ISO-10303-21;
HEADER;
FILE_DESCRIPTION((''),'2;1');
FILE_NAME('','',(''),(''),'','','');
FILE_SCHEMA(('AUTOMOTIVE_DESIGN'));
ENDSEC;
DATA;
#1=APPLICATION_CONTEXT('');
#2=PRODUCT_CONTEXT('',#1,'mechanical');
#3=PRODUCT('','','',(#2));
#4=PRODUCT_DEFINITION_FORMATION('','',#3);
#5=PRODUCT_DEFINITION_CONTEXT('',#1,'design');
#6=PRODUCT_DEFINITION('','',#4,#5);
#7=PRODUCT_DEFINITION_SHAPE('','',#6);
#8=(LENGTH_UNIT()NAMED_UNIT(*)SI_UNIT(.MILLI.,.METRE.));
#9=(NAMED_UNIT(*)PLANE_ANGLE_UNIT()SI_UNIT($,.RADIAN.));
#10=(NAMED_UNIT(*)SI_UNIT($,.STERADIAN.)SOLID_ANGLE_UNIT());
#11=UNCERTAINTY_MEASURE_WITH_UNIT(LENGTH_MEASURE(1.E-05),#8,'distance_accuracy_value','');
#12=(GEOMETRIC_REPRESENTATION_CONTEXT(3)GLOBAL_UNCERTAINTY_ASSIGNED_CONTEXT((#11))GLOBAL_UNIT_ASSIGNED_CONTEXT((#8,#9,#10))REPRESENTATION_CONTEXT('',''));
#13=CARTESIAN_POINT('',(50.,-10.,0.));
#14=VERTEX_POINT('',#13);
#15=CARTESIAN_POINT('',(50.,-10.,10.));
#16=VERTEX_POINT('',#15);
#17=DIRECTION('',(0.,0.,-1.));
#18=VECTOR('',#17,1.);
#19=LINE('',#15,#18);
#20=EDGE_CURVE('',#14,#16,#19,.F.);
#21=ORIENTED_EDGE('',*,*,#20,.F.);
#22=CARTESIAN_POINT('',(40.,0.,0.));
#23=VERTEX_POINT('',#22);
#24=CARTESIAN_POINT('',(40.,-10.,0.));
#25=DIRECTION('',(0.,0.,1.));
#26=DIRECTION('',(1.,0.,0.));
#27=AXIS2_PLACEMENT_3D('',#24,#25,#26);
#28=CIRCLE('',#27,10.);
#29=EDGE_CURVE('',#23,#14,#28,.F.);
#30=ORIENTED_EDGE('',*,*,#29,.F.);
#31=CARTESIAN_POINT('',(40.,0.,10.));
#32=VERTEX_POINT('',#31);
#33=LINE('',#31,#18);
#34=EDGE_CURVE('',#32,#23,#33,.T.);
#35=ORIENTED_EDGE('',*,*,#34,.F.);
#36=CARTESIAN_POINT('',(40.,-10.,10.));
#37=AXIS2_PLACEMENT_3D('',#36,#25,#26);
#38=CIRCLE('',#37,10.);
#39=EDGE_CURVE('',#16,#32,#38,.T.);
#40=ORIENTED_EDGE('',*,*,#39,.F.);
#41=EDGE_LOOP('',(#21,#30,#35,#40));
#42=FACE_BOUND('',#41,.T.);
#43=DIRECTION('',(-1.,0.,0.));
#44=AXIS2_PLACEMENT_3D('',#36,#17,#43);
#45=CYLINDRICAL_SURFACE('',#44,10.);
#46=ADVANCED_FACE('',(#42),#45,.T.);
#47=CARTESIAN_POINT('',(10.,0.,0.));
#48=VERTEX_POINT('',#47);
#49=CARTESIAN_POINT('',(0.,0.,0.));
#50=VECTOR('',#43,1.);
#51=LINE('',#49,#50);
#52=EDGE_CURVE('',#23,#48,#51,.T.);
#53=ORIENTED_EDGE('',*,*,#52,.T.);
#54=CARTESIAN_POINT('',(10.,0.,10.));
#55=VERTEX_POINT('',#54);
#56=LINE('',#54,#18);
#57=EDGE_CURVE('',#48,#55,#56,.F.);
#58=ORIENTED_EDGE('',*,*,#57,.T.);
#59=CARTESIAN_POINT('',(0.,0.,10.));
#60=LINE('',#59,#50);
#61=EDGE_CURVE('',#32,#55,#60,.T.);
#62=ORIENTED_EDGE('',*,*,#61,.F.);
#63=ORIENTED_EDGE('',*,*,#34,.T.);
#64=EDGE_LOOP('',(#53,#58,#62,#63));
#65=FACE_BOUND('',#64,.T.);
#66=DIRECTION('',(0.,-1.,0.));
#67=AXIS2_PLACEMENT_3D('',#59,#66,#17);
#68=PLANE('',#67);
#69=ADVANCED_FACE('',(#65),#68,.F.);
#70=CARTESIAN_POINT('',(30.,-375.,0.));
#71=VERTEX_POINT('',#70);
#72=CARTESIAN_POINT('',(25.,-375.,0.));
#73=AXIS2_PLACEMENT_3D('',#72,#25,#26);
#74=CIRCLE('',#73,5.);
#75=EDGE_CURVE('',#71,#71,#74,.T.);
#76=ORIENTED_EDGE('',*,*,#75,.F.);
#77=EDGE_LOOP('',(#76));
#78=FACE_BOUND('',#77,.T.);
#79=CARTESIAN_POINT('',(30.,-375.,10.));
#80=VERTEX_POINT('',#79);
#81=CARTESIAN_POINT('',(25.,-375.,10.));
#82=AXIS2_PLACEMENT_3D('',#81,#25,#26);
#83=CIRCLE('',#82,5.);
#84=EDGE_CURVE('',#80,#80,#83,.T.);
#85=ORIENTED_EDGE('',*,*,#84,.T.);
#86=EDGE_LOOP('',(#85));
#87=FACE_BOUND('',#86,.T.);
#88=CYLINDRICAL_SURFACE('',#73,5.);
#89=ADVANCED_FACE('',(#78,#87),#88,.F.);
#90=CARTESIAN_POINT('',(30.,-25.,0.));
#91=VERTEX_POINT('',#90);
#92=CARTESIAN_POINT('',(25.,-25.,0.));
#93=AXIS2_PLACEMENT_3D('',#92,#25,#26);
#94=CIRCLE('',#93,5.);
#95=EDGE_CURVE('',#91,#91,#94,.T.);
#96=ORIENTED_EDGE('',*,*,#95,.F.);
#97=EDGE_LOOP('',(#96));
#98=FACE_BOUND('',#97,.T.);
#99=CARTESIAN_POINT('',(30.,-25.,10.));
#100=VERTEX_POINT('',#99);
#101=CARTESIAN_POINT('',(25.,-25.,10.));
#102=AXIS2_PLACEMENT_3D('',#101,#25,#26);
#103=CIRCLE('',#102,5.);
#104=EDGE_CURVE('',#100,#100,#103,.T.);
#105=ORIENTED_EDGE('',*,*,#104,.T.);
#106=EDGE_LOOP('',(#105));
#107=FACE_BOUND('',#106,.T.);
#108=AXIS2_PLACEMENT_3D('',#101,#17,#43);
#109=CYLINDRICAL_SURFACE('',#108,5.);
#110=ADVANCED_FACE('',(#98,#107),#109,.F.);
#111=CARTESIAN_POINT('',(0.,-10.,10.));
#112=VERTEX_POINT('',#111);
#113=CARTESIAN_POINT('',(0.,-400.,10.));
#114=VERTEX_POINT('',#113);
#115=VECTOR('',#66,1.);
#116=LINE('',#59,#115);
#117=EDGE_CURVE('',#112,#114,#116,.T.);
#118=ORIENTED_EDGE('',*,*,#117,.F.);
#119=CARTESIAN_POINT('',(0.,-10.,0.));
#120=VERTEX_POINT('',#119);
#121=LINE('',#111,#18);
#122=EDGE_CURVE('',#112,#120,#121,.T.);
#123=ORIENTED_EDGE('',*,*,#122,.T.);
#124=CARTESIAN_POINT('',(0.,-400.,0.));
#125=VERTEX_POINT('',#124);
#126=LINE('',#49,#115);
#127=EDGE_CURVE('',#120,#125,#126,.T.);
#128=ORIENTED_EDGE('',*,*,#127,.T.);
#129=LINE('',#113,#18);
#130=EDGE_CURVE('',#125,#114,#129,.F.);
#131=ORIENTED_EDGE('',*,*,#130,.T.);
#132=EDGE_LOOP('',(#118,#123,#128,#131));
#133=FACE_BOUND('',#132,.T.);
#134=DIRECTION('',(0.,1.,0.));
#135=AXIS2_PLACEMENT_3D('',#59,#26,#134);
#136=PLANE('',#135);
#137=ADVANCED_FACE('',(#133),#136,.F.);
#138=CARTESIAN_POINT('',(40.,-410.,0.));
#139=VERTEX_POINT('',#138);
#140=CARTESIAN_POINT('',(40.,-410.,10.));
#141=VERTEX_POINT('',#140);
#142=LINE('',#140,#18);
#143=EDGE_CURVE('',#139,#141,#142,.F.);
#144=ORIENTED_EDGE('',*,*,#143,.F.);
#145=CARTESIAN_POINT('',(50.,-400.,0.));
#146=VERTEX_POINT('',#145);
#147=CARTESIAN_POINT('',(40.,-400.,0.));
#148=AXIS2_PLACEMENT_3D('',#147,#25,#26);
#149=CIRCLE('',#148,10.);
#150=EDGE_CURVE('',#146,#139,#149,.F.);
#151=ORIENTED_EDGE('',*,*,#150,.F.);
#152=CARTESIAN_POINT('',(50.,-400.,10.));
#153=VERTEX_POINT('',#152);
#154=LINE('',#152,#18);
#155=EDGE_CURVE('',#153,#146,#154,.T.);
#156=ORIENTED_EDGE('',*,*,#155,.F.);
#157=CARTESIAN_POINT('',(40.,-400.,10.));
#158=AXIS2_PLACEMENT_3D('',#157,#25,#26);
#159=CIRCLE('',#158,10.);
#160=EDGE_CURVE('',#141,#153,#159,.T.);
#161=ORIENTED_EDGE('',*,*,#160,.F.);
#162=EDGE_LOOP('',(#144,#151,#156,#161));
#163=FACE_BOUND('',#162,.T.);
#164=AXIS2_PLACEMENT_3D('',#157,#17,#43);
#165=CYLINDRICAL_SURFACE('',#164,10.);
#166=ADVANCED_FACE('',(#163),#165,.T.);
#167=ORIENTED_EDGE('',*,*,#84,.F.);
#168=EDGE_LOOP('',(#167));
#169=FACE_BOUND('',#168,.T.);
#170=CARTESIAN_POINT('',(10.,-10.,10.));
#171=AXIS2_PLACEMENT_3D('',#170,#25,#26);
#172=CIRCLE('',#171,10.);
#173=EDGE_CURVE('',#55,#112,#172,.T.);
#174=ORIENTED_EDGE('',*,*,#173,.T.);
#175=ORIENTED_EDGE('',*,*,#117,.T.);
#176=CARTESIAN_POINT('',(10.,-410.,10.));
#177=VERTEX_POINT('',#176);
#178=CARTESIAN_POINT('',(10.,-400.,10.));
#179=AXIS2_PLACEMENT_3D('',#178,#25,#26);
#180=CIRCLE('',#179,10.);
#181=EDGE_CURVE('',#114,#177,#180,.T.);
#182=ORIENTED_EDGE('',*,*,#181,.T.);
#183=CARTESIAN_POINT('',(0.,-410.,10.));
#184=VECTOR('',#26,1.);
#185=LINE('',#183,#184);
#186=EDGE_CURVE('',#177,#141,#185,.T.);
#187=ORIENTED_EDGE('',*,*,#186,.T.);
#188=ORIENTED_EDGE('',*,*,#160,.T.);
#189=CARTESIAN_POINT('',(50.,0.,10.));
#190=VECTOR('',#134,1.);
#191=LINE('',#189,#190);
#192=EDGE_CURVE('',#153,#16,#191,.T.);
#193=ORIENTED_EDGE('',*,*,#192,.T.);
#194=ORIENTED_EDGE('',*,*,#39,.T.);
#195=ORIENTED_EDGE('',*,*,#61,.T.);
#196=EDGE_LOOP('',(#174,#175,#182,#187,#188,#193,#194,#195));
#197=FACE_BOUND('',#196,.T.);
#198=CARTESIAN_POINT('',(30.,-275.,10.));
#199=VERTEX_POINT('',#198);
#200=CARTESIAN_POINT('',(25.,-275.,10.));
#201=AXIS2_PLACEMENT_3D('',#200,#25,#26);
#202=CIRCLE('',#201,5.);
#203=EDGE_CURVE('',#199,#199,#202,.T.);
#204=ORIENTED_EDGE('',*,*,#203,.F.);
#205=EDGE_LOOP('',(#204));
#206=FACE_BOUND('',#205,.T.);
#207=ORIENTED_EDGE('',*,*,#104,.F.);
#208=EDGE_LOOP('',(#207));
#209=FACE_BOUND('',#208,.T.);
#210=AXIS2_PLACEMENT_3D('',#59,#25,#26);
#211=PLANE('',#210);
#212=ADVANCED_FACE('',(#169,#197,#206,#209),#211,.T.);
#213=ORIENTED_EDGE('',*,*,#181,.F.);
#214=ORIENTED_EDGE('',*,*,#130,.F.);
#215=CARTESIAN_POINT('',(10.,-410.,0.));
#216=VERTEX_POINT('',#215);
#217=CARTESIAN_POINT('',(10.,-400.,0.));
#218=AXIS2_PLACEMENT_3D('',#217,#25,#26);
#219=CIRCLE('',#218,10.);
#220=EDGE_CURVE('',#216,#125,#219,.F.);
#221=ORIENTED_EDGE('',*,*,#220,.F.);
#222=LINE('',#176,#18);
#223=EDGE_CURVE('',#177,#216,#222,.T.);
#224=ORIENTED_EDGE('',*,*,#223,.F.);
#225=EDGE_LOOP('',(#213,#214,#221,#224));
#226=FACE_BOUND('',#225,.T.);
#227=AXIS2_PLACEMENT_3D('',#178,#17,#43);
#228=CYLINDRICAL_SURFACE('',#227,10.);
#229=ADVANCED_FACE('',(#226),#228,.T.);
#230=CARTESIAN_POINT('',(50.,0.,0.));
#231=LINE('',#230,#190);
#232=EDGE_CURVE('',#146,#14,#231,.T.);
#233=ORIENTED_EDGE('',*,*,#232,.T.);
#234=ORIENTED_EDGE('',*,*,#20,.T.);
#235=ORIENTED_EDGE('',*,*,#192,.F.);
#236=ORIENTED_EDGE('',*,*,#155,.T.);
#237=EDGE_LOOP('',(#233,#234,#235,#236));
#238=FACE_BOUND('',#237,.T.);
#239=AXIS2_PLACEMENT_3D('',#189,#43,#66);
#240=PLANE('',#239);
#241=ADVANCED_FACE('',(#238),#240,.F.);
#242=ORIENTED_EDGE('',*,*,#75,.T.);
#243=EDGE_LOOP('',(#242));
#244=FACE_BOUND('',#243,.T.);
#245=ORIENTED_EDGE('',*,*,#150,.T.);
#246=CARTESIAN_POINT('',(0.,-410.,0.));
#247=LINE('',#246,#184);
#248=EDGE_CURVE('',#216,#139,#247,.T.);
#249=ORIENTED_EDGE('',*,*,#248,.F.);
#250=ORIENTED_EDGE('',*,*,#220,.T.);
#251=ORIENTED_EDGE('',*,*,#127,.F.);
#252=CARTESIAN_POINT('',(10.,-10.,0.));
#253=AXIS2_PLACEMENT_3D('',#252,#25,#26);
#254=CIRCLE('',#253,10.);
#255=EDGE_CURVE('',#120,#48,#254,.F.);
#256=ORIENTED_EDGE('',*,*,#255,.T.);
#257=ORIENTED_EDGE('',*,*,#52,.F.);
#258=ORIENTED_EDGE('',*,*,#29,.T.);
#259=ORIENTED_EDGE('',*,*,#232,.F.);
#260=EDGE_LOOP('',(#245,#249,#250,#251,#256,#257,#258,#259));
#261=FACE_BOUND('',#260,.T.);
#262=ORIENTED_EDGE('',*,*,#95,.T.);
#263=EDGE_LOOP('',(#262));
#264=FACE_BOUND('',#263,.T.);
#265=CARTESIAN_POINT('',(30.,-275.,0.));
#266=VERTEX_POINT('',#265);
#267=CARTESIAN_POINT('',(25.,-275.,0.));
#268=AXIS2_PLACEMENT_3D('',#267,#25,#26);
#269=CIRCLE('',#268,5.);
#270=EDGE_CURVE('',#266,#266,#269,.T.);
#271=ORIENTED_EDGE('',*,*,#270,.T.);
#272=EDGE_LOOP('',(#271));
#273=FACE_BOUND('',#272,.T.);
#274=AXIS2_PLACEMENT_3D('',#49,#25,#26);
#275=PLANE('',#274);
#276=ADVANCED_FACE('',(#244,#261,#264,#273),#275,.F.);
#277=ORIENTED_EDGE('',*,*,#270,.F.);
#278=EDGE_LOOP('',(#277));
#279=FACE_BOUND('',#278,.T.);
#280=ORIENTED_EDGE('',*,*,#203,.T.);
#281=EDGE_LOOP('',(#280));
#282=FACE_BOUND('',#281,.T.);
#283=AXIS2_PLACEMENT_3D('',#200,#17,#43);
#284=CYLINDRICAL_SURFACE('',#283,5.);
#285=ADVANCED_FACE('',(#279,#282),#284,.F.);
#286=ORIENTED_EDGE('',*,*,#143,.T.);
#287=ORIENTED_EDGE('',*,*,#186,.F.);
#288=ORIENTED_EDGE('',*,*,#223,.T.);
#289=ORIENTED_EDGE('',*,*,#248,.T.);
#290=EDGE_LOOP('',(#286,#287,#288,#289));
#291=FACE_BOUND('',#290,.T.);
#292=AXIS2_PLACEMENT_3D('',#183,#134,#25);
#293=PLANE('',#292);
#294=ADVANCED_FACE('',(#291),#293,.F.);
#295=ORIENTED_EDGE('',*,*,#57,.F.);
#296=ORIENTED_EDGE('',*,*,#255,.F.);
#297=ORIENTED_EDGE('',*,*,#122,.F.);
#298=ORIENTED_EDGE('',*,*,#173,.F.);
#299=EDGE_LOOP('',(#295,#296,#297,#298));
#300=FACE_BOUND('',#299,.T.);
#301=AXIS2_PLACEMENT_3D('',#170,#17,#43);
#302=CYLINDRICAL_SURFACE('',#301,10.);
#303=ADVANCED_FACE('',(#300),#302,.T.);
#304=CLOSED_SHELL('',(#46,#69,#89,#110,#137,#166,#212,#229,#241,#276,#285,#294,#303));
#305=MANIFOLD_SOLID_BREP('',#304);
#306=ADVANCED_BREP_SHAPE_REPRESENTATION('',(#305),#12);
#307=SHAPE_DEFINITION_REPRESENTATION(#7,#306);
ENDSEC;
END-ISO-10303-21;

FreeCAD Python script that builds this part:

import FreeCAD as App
import Part
import Sketcher
Q = App.Units.Quantity


def edges_at(feature, points):
    """Names of the edges that pass closest to the given points."""
    edges = feature.Shape.Edges
    near = lambda p: min(range(len(edges)), key=lambda i: edges[i].distToShape(Part.Vertex(*p))[0])
    return sorted({f"Edge{near(p) + 1}" for p in points})

doc = App.newDocument("Part")
body = doc.addObject("PartDesign::Body", "Body")

sketch1 = body.newObject("Sketcher::SketchObject", "Sketch")
sketch1.AttachmentSupport = (doc.getObject("XY_Plane"), [""])
sketch1.MapMode = "FlatFace"
sketch1.addGeometry([
    Part.LineSegment(App.Vector(0, 0, 0), App.Vector(0, -410, 0)),
    Part.LineSegment(App.Vector(0, -410, 0), App.Vector(50, -410, 0)),
    Part.LineSegment(App.Vector(50, -410, 0), App.Vector(50, 0, 0)),
    Part.LineSegment(App.Vector(50, 0, 0), App.Vector(0, 0, 0)),
    Part.Circle(App.Vector(25, -275, 0), App.Vector(0, 0, 1), 5),
    Part.Circle(App.Vector(25, -25, 0), App.Vector(0, 0, 1), 5),
], False)
sketch1.addConstraint([
    Sketcher.Constraint("Coincident", 0, 2, 1, 1),
    Sketcher.Constraint("Coincident", 1, 2, 2, 1),
    Sketcher.Constraint("Coincident", 2, 2, 3, 1),
    Sketcher.Constraint("Coincident", 3, 2, 0, 1),
    Sketcher.Constraint("Vertical", 0),
    Sketcher.Constraint("Horizontal", 1),
    Sketcher.Constraint("Vertical", 2),
    Sketcher.Constraint("Horizontal", 3),
    Sketcher.Constraint("Coincident", 3, 2, -1, 1),
    Sketcher.Constraint("Equal", 4, 5),
    Sketcher.Constraint("Vertical", 4, 3, 5, 3),
    Sketcher.Constraint("Diameter", 4, Q("10 mm")),
    Sketcher.Constraint("DistanceX", 1, 1, 1, 2, Q("50 mm")),
    Sketcher.Constraint("DistanceY", 0, 2, 0, 1, Q("410 mm")),
    Sketcher.Constraint("DistanceX", -1, 1, 4, 3, Q("25 mm")),
    Sketcher.Constraint("DistanceY", 4, 3, -1, 1, Q("275 mm")),
    Sketcher.Constraint("DistanceY", 5, 3, -1, 1, Q("25 mm")),
])
pad1 = body.newObject("PartDesign::Pad", "Pad")
pad1.Profile = sketch1
pad1.Length = 10
doc.recompute()

fillet = body.newObject("PartDesign::Fillet", "Fillet")
fillet.Base = (pad1, edges_at(pad1, [
    (0, 0, 5),
    (50, 0, 5),
    (50, -410, 5),
    (0, -410, 5),
]))
fillet.Radius = 10

sketch2 = body.newObject("Sketcher::SketchObject", "Sketch001")
sketch2.AttachmentSupport = (doc.getObject("XY_Plane"), [""])
sketch2.MapMode = "FlatFace"
sketch2.AttachmentOffset = App.Placement(App.Vector(0, 0, 10), App.Rotation())
sketch2.addGeometry(Part.Circle(App.Vector(25, -375, 0), App.Vector(0, 0, 1), 5), False)
sketch2.addConstraint([
    Sketcher.Constraint("Diameter", 0, Q("10 mm")),
    Sketcher.Constraint("DistanceX", -1, 1, 0, 3, Q("25 mm")),
    Sketcher.Constraint("DistanceY", 0, 3, -1, 1, Q("375 mm")),
])
pocket1 = body.newObject("PartDesign::Pocket", "Pocket")
pocket1.Profile = sketch2
pocket1.Length = 10

doc.recompute()
